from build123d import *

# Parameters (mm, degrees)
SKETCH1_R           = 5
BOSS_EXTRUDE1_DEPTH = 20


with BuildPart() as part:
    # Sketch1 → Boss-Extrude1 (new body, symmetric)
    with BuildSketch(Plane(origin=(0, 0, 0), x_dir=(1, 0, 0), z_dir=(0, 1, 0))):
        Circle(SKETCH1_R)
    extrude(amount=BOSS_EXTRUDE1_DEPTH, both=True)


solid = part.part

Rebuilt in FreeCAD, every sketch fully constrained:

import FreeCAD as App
import Part
import Sketcher

doc = App.newDocument("Part")
body = doc.addObject("PartDesign::Body", "Body")

# Sketch on XZ plane
sketch1 = body.newObject("Sketcher::SketchObject", "Sketch")
sketch1.AttachmentSupport = (doc.getObject("XZ_Plane"), [""])
sketch1.MapMode = "FlatFace"
sketch1.addGeometry(Part.Circle(App.Vector(0, 0, 0), App.Vector(0, 0, 1), 5), False)
sketch1.addConstraint(Sketcher.Constraint("Coincident", 0, 3, -1, 1))
sketch1.addConstraint(Sketcher.Constraint("Diameter", 0, 10.0))
pad1 = body.newObject("PartDesign::Pad", "Pad")
pad1.Profile = sketch1
pad1.Length = 40
pad1.Midplane = True

doc.recompute()
